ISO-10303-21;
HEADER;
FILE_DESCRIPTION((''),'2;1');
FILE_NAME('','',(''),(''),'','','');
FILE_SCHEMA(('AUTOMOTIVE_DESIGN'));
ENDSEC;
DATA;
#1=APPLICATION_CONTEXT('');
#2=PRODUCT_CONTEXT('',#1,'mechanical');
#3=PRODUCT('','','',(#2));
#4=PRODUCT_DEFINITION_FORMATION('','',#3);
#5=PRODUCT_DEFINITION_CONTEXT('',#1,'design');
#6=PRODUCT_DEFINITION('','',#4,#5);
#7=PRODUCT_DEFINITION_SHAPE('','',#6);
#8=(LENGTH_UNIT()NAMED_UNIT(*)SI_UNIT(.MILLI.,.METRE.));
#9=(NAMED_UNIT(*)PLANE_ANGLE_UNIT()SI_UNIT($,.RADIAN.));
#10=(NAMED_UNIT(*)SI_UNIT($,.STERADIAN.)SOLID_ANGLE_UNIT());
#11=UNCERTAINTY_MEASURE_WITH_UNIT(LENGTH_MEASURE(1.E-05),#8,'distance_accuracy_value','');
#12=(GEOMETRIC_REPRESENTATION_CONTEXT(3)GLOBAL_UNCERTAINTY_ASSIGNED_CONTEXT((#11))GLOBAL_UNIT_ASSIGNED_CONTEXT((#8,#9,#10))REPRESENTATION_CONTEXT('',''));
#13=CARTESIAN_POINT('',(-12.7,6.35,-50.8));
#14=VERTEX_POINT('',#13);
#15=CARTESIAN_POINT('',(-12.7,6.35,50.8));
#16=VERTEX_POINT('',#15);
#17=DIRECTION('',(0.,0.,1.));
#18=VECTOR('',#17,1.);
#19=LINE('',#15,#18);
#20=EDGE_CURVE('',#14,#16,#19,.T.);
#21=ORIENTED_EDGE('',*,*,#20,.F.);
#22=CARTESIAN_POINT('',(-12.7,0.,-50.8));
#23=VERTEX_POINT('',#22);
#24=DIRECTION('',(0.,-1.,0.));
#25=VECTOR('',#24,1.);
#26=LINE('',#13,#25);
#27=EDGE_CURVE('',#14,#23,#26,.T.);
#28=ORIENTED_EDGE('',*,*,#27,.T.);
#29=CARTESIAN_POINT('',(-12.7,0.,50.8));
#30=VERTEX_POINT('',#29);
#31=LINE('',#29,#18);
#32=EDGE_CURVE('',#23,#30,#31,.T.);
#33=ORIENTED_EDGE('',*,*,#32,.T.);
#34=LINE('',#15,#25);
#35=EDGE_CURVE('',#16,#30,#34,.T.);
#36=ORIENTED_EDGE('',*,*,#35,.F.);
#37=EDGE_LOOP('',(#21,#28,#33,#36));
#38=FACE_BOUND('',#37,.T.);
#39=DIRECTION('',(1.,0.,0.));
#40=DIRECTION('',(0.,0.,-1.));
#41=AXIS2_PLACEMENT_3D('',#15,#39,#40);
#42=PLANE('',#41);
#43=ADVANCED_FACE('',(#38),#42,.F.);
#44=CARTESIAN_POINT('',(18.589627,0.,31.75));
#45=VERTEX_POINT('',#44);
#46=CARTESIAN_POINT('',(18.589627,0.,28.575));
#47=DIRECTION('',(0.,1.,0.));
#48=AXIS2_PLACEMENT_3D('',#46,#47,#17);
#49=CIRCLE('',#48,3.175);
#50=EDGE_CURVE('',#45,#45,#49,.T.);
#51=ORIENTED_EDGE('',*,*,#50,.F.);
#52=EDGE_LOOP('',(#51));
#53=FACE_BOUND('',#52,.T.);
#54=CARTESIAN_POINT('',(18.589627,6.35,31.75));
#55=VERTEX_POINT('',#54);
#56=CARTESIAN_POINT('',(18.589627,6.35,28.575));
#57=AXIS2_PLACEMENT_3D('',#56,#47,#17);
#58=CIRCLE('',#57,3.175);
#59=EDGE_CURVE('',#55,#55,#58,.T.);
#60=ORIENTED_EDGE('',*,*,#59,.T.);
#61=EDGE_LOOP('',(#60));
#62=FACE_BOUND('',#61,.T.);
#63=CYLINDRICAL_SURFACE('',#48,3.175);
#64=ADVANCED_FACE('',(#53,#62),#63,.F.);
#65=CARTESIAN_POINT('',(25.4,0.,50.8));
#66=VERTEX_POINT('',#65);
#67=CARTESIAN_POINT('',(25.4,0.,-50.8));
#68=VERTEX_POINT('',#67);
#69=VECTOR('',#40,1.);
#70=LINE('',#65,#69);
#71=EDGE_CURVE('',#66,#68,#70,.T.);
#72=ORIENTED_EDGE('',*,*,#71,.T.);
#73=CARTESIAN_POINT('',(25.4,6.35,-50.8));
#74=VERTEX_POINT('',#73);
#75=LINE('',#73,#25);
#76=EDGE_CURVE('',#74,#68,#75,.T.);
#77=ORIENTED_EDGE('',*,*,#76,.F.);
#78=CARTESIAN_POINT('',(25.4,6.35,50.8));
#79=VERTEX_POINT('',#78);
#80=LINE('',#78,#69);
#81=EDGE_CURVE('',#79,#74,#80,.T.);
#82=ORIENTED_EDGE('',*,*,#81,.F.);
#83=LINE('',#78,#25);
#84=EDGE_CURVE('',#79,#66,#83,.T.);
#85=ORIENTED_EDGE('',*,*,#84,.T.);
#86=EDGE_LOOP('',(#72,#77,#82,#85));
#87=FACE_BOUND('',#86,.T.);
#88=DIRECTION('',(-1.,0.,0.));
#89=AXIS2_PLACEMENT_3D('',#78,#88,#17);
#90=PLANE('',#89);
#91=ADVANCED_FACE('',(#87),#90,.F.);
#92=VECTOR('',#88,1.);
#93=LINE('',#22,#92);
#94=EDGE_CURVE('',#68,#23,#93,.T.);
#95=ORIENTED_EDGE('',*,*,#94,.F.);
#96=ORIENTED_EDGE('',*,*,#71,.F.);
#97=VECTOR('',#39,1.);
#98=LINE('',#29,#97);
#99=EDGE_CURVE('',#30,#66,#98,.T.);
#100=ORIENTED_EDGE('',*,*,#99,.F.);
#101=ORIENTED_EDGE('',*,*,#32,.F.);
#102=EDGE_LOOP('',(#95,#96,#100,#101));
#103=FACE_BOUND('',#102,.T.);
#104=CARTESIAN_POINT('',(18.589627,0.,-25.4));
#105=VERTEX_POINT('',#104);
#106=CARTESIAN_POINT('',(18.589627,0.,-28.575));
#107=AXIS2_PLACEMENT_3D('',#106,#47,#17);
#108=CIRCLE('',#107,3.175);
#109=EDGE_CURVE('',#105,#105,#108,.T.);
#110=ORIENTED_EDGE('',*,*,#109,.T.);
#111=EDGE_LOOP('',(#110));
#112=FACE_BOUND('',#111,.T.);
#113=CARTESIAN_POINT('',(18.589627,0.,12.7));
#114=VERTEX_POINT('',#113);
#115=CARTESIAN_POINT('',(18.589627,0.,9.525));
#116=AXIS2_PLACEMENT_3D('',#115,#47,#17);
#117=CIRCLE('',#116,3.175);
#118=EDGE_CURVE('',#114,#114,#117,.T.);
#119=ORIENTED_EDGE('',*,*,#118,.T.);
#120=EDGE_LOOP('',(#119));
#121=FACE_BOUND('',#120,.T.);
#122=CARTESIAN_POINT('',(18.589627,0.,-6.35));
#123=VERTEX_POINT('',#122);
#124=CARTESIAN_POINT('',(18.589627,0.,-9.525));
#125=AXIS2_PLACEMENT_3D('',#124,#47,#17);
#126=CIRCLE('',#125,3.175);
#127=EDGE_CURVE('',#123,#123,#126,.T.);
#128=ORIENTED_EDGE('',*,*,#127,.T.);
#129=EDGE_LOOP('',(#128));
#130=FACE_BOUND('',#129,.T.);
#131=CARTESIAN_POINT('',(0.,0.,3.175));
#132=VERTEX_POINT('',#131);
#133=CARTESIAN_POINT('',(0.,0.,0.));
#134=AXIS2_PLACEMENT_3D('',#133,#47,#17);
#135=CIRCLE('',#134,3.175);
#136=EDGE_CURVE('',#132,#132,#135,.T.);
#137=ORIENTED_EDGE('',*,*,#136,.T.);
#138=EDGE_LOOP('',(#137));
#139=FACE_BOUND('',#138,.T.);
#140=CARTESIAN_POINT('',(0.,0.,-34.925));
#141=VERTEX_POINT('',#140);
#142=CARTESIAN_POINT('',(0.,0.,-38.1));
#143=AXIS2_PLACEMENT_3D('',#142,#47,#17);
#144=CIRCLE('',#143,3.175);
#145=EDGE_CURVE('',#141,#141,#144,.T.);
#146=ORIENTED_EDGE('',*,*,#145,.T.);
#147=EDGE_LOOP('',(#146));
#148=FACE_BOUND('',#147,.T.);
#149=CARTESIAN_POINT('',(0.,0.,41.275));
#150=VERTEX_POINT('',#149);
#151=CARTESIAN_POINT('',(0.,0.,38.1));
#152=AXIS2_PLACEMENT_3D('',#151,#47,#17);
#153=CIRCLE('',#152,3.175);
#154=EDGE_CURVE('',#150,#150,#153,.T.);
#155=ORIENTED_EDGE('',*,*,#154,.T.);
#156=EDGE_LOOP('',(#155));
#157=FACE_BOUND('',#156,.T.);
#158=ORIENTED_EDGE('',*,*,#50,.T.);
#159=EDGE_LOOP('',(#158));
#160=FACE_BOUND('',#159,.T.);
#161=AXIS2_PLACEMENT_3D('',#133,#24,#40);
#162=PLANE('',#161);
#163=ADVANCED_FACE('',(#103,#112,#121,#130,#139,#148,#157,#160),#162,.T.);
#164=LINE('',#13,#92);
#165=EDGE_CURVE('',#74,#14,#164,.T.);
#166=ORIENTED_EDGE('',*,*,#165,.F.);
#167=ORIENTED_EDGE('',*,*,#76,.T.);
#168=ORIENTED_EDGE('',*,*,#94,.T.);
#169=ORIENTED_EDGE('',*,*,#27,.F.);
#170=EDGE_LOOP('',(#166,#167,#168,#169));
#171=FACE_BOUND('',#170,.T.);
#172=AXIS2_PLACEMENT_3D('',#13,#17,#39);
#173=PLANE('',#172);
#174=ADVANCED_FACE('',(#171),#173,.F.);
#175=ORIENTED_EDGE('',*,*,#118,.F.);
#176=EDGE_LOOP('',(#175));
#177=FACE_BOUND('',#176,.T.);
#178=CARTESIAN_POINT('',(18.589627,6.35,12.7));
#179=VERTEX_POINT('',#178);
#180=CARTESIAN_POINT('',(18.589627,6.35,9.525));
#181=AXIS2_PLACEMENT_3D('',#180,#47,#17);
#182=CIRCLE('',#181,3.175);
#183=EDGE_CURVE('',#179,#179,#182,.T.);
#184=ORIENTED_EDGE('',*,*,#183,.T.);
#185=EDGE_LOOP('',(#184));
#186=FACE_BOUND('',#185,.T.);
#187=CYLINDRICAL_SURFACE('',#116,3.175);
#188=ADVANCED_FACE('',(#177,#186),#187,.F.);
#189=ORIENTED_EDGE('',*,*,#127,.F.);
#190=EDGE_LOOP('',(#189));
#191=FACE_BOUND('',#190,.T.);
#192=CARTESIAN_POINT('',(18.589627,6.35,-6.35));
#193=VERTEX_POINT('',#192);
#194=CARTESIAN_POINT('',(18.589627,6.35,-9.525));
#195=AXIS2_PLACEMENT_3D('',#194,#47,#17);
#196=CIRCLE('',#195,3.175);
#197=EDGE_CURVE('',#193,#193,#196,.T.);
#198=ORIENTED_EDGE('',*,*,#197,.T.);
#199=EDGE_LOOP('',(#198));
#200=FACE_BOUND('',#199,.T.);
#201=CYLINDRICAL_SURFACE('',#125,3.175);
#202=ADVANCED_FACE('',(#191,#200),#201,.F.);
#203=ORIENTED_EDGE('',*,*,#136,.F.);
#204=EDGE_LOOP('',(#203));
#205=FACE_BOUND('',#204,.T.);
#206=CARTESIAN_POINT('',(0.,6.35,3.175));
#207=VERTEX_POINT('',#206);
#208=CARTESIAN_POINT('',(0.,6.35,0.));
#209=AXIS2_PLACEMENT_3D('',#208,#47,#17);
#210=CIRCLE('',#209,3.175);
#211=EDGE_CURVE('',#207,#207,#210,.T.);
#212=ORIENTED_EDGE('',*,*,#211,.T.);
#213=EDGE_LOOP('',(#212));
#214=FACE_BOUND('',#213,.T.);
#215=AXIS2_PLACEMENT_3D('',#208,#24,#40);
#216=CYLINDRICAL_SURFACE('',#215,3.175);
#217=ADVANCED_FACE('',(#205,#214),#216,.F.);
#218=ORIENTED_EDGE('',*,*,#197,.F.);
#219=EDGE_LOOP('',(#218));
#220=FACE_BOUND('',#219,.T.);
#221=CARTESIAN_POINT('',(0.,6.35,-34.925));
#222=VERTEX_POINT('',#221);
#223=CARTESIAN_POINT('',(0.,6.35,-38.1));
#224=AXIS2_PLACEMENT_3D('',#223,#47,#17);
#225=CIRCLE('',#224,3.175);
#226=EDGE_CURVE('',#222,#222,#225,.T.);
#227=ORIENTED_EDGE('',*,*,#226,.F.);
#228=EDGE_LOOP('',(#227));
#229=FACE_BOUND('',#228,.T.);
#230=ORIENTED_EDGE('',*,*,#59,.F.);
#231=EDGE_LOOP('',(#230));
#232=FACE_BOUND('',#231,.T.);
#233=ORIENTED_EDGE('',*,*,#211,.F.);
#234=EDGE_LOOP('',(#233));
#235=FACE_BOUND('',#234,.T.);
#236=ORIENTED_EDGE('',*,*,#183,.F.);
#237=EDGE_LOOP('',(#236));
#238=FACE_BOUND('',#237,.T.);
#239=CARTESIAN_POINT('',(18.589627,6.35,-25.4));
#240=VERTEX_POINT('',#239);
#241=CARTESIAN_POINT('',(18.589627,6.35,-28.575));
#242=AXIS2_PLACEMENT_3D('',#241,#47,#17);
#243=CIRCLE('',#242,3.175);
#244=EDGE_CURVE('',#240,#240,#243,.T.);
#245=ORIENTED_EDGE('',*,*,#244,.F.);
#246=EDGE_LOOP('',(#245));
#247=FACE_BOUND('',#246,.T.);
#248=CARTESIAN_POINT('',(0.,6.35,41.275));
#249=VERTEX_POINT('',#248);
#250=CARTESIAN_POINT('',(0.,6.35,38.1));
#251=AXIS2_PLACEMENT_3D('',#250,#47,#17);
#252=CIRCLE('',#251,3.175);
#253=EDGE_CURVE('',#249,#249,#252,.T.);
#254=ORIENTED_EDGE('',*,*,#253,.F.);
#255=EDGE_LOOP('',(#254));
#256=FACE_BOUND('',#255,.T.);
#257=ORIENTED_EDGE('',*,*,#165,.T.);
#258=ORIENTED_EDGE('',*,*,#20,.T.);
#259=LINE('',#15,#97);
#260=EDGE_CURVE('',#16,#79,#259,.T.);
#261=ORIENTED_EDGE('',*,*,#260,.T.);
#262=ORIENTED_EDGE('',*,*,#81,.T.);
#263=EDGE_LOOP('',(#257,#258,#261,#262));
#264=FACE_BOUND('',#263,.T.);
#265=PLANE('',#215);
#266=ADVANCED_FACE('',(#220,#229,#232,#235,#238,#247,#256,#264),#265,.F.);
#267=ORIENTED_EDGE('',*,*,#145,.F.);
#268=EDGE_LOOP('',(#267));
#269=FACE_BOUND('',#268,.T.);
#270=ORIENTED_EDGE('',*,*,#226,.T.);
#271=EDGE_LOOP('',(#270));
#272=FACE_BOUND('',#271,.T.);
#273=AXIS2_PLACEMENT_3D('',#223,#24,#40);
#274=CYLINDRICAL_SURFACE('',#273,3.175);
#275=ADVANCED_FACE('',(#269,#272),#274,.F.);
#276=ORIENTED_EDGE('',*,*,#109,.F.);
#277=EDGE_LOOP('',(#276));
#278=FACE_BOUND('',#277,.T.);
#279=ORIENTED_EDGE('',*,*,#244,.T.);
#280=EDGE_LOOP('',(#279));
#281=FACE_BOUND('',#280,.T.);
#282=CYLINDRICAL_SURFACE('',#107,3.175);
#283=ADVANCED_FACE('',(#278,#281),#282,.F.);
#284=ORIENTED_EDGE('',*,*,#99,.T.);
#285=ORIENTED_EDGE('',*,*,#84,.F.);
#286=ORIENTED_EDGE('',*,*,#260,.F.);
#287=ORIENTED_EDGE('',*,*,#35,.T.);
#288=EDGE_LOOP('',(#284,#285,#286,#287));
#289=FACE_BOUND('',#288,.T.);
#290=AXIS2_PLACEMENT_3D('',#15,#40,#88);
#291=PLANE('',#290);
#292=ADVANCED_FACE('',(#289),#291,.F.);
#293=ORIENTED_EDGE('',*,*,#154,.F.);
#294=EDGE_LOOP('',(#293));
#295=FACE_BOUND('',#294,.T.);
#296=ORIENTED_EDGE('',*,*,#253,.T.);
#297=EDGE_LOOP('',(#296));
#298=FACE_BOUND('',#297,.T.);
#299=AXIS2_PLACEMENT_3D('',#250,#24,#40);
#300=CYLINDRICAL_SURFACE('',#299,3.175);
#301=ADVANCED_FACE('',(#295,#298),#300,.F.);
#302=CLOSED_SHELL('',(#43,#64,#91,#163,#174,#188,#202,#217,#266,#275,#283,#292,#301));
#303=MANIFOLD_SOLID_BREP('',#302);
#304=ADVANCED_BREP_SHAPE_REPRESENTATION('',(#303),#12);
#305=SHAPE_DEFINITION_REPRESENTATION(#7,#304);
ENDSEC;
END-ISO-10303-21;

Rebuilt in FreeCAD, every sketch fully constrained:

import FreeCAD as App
import Part
import Sketcher
from FreeCAD import Vector
Q = App.Units.Quantity

doc = App.newDocument("Part")
body = doc.addObject("PartDesign::Body", "Body")

# Sketch on XZ plane
sketch1 = doc.addObject("Sketcher::SketchObject", "Sketch")
body.addObject(sketch1)
sketch1.AttachmentSupport = (doc.XZ_Plane, [""])
sketch1.MapMode = "FlatFace"
sketch1.addGeometry([
    Part.LineSegment(Vector(-12.7, -50.8, 0), Vector(-12.7, 50.8, 0)),  # 0
    Part.LineSegment(Vector(-12.7, 50.8, 0), Vector(25.4, 50.8, 0)),  # 1
    Part.LineSegment(Vector(25.4, 50.8, 0), Vector(25.4, -50.8, 0)),  # 2
    Part.LineSegment(Vector(25.4, -50.8, 0), Vector(-12.7, -50.8, 0)),  # 3
    Part.Circle(Vector(0, 38.1, 0), Vector(0, 0, 1), 3.175),  # 4
    Part.Circle(Vector(0, 0, 0), Vector(0, 0, 1), 3.175),  # 5
    Part.Circle(Vector(0, -38.1, 0), Vector(0, 0, 1), 3.175),  # 6
], False)
sketch1.addConstraint([
    Sketcher.Constraint("Coincident", 0, 2, 1, 1),
    Sketcher.Constraint("Coincident", 1, 2, 2, 1),
    Sketcher.Constraint("Coincident", 2, 2, 3, 1),
    Sketcher.Constraint("Coincident", 3, 2, 0, 1),
    Sketcher.Constraint("Vertical", 0),
    Sketcher.Constraint("Horizontal", 1),
    Sketcher.Constraint("Vertical", 2),
    Sketcher.Constraint("Horizontal", 3),
    Sketcher.Constraint("Coincident", 5, 3, -1, 1),
    Sketcher.Constraint("Equal", 4, 5),
    Sketcher.Constraint("Equal", 5, 6),
    Sketcher.Constraint("Symmetric", 4, 3, 6, 3, -1, 1),
    Sketcher.Constraint("PointOnObject", 4, 3, -2),
    Sketcher.Constraint("Diameter", 4, Q("0.25 in")),
    Sketcher.Constraint("DistanceY", 0, 1, 0, 2, Q("4 in")),
    Sketcher.Constraint("DistanceX", 1, 1, 1, 2, Q("1.5 in")),
    Sketcher.Constraint("DistanceY", -1, 1, 0, 2, Q("2 in")),
    Sketcher.Constraint("DistanceX", -1, 1, 1, 2, Q("1 in")),
    Sketcher.Constraint("DistanceY", 6, 3, 4, 3, Q("3 in")),
])
pad1 = doc.addObject("PartDesign::Pad", "Pad")
body.addObject(pad1)
pad1.Profile = sketch1
pad1.Length = Q("0.25 in")
pad1.Reversed = True

# Sketch on XZ plane
sketch2 = doc.addObject("Sketcher::SketchObject", "Sketch001")
body.addObject(sketch2)
sketch2.AttachmentSupport = (doc.XZ_Plane, [""])
sketch2.MapMode = "FlatFace"
sketch2.AttachmentOffset = App.Placement(Vector(0, 0, -0.25 * 25.4), App.Rotation())
sketch2.addGeometry([
    Part.Circle(Vector(18.589627, -28.575, 0), Vector(0, 0, 1), 3.175),
    Part.Circle(Vector(18.589627, -9.525, 0), Vector(0, 0, 1), 3.175),
    Part.Circle(Vector(18.589627, 9.525, 0), Vector(0, 0, 1), 3.175),
    Part.Circle(Vector(18.589627, 28.575, 0), Vector(0, 0, 1), 3.175),
], False)
sketch2.addConstraint([
    Sketcher.Constraint("Equal", 0, 1),
    Sketcher.Constraint("Equal", 1, 2),
    Sketcher.Constraint("Equal", 2, 3),
    Sketcher.Constraint("Symmetric", 1, 3, 2, 3, -1),
    Sketcher.Constraint("Symmetric", 0, 3, 3, 3, -1),
    Sketcher.Constraint("Vertical", 0, 3, 1, 3),
    Sketcher.Constraint("Diameter", 0, Q("0.25 in")),
    Sketcher.Constraint("DistanceY", 0, 3, 2, 3, Q("1.5 in")),
    Sketcher.Constraint("DistanceY", 0, 3, 1, 3, Q("0.75 in")),
    Sketcher.Constraint("DistanceX", -1, 1, 0, 3, Q("18.589627 mm")),
])
pocket1 = doc.addObject("PartDesign::Pocket", "Pocket")
body.addObject(pocket1)
pocket1.Profile = sketch2
pocket1.Type = "ThroughAll"
pocket1.Reversed = True

doc.recompute()
